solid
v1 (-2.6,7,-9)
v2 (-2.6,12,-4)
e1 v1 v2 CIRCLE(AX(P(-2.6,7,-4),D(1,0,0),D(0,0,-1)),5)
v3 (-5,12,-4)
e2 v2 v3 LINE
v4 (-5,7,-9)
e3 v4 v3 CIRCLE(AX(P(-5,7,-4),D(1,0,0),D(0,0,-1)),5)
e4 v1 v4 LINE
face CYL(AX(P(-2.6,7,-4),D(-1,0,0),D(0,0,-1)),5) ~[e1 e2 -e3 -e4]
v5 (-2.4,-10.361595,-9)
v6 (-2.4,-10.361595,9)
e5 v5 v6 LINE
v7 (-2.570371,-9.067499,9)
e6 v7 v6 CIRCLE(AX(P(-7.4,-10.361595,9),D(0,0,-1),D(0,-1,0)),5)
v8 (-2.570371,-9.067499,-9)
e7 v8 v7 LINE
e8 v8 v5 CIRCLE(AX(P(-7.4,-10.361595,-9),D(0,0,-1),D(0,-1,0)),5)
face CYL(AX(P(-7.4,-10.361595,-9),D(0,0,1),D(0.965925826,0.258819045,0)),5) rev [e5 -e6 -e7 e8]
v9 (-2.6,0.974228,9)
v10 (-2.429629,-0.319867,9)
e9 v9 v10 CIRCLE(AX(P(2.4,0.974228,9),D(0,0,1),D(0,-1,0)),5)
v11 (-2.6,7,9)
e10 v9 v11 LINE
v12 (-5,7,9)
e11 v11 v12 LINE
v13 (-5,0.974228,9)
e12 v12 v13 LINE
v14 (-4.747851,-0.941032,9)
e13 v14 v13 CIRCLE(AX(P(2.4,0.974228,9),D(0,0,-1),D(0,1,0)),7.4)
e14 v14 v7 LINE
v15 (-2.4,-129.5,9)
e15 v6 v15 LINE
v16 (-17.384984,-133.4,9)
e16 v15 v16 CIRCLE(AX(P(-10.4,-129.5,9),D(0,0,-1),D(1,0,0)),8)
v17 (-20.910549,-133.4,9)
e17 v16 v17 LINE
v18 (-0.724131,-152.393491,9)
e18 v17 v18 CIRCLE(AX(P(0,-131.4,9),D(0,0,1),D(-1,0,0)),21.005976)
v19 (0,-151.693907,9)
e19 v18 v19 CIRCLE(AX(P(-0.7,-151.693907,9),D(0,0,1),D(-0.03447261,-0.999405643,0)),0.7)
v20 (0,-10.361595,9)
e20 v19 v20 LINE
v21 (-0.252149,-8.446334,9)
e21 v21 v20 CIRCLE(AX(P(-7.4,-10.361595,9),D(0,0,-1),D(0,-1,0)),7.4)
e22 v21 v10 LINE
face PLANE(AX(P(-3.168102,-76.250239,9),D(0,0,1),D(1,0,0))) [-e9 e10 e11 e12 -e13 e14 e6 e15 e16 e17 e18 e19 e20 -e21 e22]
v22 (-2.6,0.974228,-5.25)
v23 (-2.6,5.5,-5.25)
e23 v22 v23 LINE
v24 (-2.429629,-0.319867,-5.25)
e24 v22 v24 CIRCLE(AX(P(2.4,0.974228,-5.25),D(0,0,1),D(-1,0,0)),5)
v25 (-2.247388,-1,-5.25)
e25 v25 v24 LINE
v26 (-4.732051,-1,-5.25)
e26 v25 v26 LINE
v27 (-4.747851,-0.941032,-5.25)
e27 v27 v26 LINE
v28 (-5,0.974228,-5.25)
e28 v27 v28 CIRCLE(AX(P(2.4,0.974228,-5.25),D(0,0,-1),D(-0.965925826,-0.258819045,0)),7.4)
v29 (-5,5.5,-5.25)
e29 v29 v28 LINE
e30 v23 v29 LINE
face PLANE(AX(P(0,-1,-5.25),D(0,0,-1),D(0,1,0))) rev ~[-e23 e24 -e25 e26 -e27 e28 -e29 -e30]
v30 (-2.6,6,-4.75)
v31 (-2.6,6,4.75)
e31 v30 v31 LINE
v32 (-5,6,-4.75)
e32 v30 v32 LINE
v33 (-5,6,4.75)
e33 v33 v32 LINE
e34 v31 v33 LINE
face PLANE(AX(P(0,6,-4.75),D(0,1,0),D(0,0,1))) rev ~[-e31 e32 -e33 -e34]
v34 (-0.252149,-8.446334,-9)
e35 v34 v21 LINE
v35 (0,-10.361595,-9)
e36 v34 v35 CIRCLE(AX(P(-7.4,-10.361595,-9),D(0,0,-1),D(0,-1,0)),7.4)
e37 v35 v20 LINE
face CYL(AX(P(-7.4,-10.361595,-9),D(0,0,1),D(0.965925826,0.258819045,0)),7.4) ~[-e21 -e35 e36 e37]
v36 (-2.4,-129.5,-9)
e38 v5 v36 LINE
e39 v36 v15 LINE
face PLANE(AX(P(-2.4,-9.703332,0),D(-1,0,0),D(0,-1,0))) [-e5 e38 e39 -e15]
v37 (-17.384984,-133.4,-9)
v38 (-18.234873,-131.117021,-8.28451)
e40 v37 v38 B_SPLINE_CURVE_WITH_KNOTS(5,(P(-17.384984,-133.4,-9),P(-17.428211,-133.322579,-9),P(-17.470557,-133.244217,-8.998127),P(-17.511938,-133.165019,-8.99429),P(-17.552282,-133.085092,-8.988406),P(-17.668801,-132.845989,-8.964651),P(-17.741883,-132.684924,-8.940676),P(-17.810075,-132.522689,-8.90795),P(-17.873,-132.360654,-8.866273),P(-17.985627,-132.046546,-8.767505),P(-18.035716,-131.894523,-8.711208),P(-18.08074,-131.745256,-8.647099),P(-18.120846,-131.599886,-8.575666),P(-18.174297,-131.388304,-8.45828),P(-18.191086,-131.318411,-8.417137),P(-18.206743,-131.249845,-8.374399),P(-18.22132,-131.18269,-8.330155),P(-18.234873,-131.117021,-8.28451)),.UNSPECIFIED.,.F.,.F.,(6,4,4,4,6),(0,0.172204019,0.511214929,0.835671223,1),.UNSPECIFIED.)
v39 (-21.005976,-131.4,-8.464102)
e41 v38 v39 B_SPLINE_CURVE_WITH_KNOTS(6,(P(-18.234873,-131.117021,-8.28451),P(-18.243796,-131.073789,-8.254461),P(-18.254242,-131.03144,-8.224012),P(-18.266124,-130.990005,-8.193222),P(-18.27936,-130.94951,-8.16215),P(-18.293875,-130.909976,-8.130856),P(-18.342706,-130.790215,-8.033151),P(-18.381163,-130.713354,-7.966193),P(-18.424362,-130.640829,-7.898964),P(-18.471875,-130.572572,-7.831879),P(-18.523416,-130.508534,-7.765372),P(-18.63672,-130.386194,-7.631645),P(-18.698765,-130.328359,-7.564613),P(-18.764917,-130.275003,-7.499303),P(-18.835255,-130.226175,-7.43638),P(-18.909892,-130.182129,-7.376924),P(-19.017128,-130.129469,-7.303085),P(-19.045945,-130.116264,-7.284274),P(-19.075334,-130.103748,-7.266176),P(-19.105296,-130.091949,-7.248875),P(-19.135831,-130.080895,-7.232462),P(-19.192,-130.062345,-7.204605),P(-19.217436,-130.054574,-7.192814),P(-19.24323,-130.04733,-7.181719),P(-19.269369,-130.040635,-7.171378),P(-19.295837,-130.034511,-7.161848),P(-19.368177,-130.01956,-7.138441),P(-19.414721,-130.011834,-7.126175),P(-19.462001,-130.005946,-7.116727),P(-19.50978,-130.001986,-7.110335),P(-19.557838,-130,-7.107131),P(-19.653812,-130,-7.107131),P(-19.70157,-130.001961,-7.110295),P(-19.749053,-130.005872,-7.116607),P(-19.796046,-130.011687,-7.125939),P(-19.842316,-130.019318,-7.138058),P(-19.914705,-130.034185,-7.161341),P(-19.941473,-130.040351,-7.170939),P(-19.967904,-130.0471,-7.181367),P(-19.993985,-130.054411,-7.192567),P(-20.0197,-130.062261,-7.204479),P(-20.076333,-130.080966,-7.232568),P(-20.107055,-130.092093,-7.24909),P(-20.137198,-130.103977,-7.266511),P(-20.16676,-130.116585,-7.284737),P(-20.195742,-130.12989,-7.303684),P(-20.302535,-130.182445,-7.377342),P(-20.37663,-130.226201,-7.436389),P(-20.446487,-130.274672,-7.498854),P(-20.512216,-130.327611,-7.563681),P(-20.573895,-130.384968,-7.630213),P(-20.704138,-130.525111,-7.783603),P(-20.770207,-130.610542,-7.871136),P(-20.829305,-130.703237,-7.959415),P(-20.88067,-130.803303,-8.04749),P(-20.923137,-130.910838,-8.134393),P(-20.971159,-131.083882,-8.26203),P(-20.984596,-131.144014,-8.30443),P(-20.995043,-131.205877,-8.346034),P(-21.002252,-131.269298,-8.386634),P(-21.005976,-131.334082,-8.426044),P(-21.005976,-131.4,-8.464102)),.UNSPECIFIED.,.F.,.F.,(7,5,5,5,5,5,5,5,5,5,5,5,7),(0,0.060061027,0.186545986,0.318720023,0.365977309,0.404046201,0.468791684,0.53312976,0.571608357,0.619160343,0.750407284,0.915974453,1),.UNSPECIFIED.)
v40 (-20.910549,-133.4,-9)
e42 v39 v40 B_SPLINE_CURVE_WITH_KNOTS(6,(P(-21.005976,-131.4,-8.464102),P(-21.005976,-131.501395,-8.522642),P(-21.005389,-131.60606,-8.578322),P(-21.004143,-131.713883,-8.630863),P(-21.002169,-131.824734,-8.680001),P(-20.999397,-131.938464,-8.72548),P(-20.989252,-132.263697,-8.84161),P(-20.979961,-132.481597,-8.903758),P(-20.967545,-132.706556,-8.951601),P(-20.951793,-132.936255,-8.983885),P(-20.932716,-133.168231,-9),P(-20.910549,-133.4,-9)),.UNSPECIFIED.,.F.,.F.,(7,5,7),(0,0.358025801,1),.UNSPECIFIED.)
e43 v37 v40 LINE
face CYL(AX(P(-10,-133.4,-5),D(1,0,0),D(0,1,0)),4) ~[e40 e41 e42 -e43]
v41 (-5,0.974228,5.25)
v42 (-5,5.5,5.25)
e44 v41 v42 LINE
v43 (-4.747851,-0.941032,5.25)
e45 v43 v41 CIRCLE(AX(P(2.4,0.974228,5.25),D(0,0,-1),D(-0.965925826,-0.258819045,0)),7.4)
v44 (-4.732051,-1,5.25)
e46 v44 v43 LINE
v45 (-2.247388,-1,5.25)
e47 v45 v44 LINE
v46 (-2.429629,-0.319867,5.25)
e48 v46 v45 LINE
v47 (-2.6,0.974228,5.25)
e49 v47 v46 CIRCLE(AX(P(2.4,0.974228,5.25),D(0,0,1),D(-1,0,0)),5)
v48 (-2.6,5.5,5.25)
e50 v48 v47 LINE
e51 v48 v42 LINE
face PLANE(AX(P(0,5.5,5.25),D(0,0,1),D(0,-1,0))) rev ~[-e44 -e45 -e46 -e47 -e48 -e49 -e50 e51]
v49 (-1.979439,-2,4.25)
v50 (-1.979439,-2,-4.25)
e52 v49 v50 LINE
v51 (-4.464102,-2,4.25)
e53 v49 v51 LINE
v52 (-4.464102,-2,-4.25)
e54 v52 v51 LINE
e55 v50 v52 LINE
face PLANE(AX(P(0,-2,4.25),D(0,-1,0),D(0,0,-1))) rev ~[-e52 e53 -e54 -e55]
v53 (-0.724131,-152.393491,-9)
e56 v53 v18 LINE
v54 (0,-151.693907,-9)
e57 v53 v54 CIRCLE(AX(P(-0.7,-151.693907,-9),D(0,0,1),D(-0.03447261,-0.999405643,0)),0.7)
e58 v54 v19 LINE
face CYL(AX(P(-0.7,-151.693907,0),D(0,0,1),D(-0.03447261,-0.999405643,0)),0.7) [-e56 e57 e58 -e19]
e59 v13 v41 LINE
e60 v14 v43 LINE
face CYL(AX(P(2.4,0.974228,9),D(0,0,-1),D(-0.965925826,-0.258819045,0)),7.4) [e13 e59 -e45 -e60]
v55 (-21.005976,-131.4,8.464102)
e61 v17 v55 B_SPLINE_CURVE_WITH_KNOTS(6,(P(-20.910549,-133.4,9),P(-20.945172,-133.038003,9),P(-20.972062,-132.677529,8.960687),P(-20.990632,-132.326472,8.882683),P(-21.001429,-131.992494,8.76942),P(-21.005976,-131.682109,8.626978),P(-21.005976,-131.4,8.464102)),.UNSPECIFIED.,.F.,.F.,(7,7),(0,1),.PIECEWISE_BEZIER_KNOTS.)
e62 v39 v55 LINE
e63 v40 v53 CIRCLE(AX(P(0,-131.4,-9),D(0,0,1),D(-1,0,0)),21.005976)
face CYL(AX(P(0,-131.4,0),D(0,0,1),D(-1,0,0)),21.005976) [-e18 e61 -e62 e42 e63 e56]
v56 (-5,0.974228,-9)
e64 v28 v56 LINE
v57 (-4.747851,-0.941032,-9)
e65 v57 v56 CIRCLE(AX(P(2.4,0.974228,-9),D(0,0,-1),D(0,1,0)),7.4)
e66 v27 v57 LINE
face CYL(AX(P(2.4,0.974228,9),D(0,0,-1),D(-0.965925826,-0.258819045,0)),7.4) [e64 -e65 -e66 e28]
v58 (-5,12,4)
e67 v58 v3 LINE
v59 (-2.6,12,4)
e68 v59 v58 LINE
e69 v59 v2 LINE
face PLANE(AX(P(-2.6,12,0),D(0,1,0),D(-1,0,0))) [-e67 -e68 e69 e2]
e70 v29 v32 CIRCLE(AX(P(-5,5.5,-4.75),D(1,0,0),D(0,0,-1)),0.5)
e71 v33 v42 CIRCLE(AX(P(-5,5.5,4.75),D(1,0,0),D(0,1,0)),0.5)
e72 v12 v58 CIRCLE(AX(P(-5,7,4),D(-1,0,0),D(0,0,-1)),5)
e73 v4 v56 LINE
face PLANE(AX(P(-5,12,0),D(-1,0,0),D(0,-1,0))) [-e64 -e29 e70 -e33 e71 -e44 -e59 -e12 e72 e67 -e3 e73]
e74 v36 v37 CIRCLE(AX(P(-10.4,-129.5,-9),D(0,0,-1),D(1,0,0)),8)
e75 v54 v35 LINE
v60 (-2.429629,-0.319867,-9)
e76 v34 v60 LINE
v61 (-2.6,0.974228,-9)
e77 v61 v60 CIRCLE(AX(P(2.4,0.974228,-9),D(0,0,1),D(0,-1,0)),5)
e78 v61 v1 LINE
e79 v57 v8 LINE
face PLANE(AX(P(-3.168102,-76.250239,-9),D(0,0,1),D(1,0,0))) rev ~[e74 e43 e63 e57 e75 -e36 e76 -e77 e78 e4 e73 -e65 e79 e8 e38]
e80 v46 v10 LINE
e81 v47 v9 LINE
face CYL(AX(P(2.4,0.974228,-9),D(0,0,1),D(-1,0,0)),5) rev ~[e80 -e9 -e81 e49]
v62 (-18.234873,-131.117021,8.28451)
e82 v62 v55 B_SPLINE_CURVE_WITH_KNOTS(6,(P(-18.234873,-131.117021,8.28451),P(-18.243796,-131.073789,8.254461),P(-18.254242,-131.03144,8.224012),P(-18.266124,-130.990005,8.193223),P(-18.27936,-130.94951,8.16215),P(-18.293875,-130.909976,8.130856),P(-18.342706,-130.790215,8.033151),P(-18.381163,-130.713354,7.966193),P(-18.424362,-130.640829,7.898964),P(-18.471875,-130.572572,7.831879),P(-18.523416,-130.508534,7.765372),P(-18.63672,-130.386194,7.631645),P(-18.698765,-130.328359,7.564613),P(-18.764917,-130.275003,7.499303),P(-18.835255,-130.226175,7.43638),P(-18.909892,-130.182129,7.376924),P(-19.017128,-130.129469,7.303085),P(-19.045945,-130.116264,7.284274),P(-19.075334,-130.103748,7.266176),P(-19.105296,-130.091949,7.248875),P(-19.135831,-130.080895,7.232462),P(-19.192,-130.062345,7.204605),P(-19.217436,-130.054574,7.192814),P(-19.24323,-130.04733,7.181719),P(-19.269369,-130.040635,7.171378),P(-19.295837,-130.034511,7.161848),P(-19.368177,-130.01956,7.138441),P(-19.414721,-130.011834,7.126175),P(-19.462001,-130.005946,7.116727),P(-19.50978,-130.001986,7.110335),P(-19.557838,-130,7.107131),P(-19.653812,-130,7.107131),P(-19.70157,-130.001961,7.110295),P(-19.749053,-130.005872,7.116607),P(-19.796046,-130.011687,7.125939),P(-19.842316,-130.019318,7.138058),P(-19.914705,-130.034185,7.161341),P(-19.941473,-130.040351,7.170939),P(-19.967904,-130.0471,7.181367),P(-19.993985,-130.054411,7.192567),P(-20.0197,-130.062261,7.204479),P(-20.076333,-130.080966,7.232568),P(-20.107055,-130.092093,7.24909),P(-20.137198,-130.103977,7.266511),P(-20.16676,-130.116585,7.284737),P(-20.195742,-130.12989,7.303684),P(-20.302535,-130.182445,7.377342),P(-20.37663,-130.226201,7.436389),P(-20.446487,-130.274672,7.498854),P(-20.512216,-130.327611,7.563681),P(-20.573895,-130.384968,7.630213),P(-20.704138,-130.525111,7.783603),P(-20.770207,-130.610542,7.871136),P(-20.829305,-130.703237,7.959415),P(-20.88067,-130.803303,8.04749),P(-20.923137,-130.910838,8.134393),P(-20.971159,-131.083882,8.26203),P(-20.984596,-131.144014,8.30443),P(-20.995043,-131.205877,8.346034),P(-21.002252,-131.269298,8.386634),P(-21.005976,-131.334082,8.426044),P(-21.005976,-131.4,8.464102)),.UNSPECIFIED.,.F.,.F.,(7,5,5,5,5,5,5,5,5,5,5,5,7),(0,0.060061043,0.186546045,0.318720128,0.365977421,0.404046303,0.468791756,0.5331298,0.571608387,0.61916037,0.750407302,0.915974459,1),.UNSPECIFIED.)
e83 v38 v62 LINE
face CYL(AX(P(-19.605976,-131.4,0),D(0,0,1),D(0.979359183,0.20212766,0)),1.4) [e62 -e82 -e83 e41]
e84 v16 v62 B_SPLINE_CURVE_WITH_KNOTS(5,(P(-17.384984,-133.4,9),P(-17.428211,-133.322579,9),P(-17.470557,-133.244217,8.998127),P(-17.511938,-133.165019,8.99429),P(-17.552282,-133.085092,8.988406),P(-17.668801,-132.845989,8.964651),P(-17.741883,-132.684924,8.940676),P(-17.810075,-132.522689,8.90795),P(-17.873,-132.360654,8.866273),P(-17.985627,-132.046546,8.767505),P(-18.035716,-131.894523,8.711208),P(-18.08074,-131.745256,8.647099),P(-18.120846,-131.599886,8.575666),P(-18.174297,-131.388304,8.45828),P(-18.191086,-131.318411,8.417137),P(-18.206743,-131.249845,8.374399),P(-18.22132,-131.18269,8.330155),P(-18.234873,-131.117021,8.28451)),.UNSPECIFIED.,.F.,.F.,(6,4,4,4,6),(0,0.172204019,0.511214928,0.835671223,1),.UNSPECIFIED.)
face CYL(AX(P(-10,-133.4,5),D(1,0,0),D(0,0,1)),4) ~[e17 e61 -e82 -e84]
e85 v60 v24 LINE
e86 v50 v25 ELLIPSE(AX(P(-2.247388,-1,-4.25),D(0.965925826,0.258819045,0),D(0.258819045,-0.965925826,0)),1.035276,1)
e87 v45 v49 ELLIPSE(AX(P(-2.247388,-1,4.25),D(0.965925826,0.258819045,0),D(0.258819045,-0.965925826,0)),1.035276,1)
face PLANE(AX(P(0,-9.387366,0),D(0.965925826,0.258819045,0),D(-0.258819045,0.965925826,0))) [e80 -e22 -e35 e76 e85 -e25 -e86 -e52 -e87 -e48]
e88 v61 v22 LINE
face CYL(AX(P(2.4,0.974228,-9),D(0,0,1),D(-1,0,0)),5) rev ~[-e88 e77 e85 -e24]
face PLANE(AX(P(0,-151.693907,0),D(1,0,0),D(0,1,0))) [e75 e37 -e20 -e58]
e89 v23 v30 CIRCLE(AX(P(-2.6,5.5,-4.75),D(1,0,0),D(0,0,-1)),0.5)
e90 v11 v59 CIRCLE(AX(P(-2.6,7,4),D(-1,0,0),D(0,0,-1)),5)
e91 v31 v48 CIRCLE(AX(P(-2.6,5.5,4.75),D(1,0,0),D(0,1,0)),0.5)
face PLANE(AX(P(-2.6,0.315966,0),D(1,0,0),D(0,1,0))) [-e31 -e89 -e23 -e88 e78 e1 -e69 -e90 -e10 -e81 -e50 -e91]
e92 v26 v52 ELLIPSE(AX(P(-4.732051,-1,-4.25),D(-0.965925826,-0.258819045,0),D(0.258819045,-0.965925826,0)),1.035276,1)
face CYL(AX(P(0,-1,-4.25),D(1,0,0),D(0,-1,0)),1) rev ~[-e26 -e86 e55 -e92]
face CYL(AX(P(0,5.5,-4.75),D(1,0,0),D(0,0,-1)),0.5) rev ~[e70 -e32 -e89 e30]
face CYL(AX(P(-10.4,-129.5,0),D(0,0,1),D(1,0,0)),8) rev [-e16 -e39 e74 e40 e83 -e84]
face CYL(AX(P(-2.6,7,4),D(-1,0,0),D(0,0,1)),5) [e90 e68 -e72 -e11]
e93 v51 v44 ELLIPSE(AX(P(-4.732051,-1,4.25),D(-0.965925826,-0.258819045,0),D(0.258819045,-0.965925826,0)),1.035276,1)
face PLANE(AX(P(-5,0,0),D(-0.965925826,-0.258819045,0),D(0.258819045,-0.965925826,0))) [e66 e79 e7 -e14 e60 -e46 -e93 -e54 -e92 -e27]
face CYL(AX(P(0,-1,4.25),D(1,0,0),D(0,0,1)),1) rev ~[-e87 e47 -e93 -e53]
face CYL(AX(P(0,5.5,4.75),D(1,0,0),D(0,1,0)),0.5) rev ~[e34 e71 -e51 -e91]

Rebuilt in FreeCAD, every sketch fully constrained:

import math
import FreeCAD as App
import Part
import Sketcher
from FreeCAD import Vector
Q = App.Units.Quantity


def edges_at(feature, points):
    """Names of the edges that pass closest to the given points."""
    edges = feature.Shape.Edges
    near = lambda p: min(range(len(edges)), key=lambda i: edges[i].distToShape(Part.Vertex(*p))[0])
    return sorted({f"Edge{near(p) + 1}" for p in points})

doc = App.newDocument("Part")
body = doc.addObject("PartDesign::Body", "Body")

# Sketch on XY plane
sketch1 = body.newObject("Sketcher::SketchObject", "Sketch")
sketch1.AttachmentSupport = (doc.getObject("XY_Plane"), [""])
sketch1.MapMode = "FlatFace"
sketch1.addGeometry([
    Part.LineSegment(Vector(-5, 0, 0), Vector(-2.4, -9.703332, 0)),  # 0
    Part.LineSegment(Vector(-2.4, -9.703332, 0), Vector(-2.4, -129.5, 0)),  # 1
    Part.ArcOfCircle(Part.Circle(Vector(-10.4, -129.5, 0), Vector(0, 0, 1), 8), math.radians(-168.338594), math.radians(0)),  # 2
    Part.ArcOfCircle(Part.Circle(Vector(-19.605976, -131.4, 0), Vector(0, 0, 1), 1.4), math.radians(11.661406), math.radians(180)),  # 3
    Part.ArcOfCircle(Part.Circle(Vector(0, -131.4, 0), Vector(0, 0, 1), 21.005976), math.radians(180), math.radians(268.024474)),  # 4
    Part.ArcOfCircle(Part.Circle(Vector(-0.7, -151.693907, 0), Vector(0, 0, 1), 0.7), math.radians(-91.975526), math.radians(0)),  # 5
    Part.LineSegment(Vector(0, -151.693907, 0), Vector(0, -9.387366, 0)),  # 6
    Part.LineSegment(Vector(0, -9.387366, 0), Vector(-2.6, 0.315966, 0)),  # 7
    Part.LineSegment(Vector(-2.6, 0.315966, 0), Vector(-2.6, 12, 0)),  # 8
    Part.LineSegment(Vector(-2.6, 12, 0), Vector(-5, 12, 0)),  # 9
    Part.LineSegment(Vector(-5, 12, 0), Vector(-5, 0, 0)),  # 10
], False)
sketch1.addConstraint([
    Sketcher.Constraint("Coincident", 0, 2, 1, 1),
    Sketcher.Constraint("Tangent", 1, 2, 2, 2),
    Sketcher.Constraint("Tangent", 2, 1, 3, 1),
    Sketcher.Constraint("Tangent", 3, 2, 4, 1),
    Sketcher.Constraint("Tangent", 4, 2, 5, 1),
    Sketcher.Constraint("Tangent", 5, 2, 6, 1),
    Sketcher.Constraint("Coincident", 6, 2, 7, 1),
    Sketcher.Constraint("Coincident", 7, 2, 8, 1),
    Sketcher.Constraint("Coincident", 8, 2, 9, 1),
    Sketcher.Constraint("Coincident", 9, 2, 10, 1),
    Sketcher.Constraint("Coincident", 10, 2, 0, 1),
    Sketcher.Constraint("Vertical", 1),
    Sketcher.Constraint("Vertical", 6),
    Sketcher.Constraint("Vertical", 8),
    Sketcher.Constraint("Horizontal", 9),
    Sketcher.Constraint("Vertical", 10),
    Sketcher.Constraint("PointOnObject", 4, 3, -2),
    Sketcher.Constraint("PointOnObject", 5, 2, -2),
    Sketcher.Constraint("PointOnObject", 10, 2, -1),
    Sketcher.Constraint("Parallel", 0, 7),
    Sketcher.Constraint("Horizontal", 3, 3, 4, 3),
    Sketcher.Constraint("Equal", 0, 7),
    Sketcher.Constraint("Radius", 2, Q("8 mm")),
    Sketcher.Constraint("Radius", 3, Q("1.4 mm")),
    Sketcher.Constraint("Radius", 5, Q("0.7 mm")),
    Sketcher.Constraint("DistanceY", 10, 2, 10, 1, Q("12 mm")),
    Sketcher.Constraint("Angle", 0, Q("-75 deg")),
    Sketcher.Constraint("DistanceX", 9, 2, 9, 1, Q("2.4 mm")),
    Sketcher.Constraint("DistanceX", 9, 2, -1, 1, Q("5 mm")),
    Sketcher.Constraint("DistanceY", 2, 3, -1, 1, Q("129.5 mm")),
    Sketcher.Constraint("DistanceY", 3, 3, -1, 1, Q("131.4 mm")),
    Sketcher.Constraint("DistanceY", 6, 1, 6, 2, Q("142.306541 mm")),
])
pad1 = body.newObject("PartDesign::Pad", "Pad")
pad1.Profile = sketch1
pad1.Length = 18
pad1.Midplane = True
doc.recompute()

fillet = body.newObject("PartDesign::Fillet", "Fillet")
fillet.Base = (pad1, edges_at(pad1, [(-2.4, -9.703, 0), (-2.6, 0.316, 0)]))
fillet.Radius = 5
doc.recompute()

fillet2 = body.newObject("PartDesign::Fillet", "Fillet001")
fillet2.Base = (fillet, edges_at(fillet, [(-5, 0, 0), (0, -9.387, 0)]))
fillet2.Radius = 7.4

# Sketch on YZ plane
sketch2 = body.newObject("Sketcher::SketchObject", "Sketch001")
sketch2.AttachmentSupport = (doc.getObject("YZ_Plane"), [""])
sketch2.MapMode = "FlatFace"
sketch2.AttachmentOffset = App.Placement(Vector(0, 0, -10), App.Rotation())
sketch2.addGeometry([
    Part.ArcOfCircle(Part.Circle(Vector(-133.4, -5, 0), Vector(0, 0, 1), 4), math.radians(-90), math.radians(0)),  # 0
    Part.LineSegment(Vector(-133.4, -9, 0), Vector(-133.4, -10, 0)),  # 1
    Part.LineSegment(Vector(-133.4, -10, 0), Vector(-128.4, -10, 0)),  # 2
    Part.LineSegment(Vector(-128.4, -10, 0), Vector(-128.4, 10, 0)),  # 3
    Part.LineSegment(Vector(-128.4, 10, 0), Vector(-133.4, 10, 0)),  # 4
    Part.LineSegment(Vector(-133.4, 10, 0), Vector(-133.4, 9, 0)),  # 5
    Part.ArcOfCircle(Part.Circle(Vector(-133.4, 5, 0), Vector(0, 0, 1), 4), math.radians(0), math.radians(90)),  # 6
    Part.LineSegment(Vector(-129.4, 5, 0), Vector(-129.4, -5, 0)),  # 7
], False)
sketch2.addConstraint([
    Sketcher.Constraint("Coincident", 0, 1, 1, 1),
    Sketcher.Constraint("Coincident", 1, 2, 2, 1),
    Sketcher.Constraint("Coincident", 2, 2, 3, 1),
    Sketcher.Constraint("Coincident", 3, 2, 4, 1),
    Sketcher.Constraint("Coincident", 4, 2, 5, 1),
    Sketcher.Constraint("Coincident", 5, 2, 6, 2),
    Sketcher.Constraint("Tangent", 6, 1, 7, 1),
    Sketcher.Constraint("Tangent", 7, 2, 0, 2),
    Sketcher.Constraint("Vertical", 1),
    Sketcher.Constraint("Horizontal", 2),
    Sketcher.Constraint("Vertical", 3),
    Sketcher.Constraint("Horizontal", 4),
    Sketcher.Constraint("Vertical", 5),
    Sketcher.Constraint("Vertical", 7),
    Sketcher.Constraint("Equal", 0, 6),
    Sketcher.Constraint("Symmetric", 1, 2, 4, 2, -1),
    Sketcher.Constraint("Vertical", 6, 3, 0, 1),
    Sketcher.Constraint("Equal", 1, 5),
    Sketcher.Constraint("Radius", 0, Q("4 mm")),
    Sketcher.Constraint("DistanceX", 2, 1, 2, 2, Q("5 mm")),
    Sketcher.Constraint("DistanceY", 1, 2, 1, 1, Q("1 mm")),
    Sketcher.Constraint("DistanceY", 3, 1, 3, 2, Q("20 mm")),
    Sketcher.Constraint("DistanceX", 0, 3, -1, 1, Q("133.4 mm")),
])
pocket1 = body.newObject("PartDesign::Pocket", "Pocket")
pocket1.Profile = sketch2
pocket1.Length = 20

# Sketch on YZ plane
sketch3 = body.newObject("Sketcher::SketchObject", "Sketch002")
sketch3.AttachmentSupport = (doc.getObject("YZ_Plane"), [""])
sketch3.MapMode = "FlatFace"
sketch3.addGeometry([
    Part.ArcOfCircle(Part.Circle(Vector(5.5, -4.75, 0), Vector(0, 0, 1), 0.5), math.radians(-90), math.radians(0)),  # 0
    Part.LineSegment(Vector(6, -4.75, 0), Vector(6, 4.75, 0)),  # 1
    Part.ArcOfCircle(Part.Circle(Vector(5.5, 4.75, 0), Vector(0, 0, 1), 0.5), math.radians(0), math.radians(90)),  # 2
    Part.LineSegment(Vector(5.5, 5.25, 0), Vector(-1, 5.25, 0)),  # 3
    Part.ArcOfCircle(Part.Circle(Vector(-1, 4.25, 0), Vector(0, 0, 1), 1), math.radians(90), math.radians(180)),  # 4
    Part.LineSegment(Vector(-2, 4.25, 0), Vector(-2, -4.25, 0)),  # 5
    Part.ArcOfCircle(Part.Circle(Vector(-1, -4.25, 0), Vector(0, 0, 1), 1), math.radians(180), math.radians(270)),  # 6
    Part.LineSegment(Vector(-1, -5.25, 0), Vector(5.5, -5.25, 0)),  # 7
], False)
sketch3.addConstraint([
    Sketcher.Constraint("Tangent", 0, 2, 1, 1),
    Sketcher.Constraint("Tangent", 1, 2, 2, 1),
    Sketcher.Constraint("Tangent", 2, 2, 3, 1),
    Sketcher.Constraint("Tangent", 3, 2, 4, 1),
    Sketcher.Constraint("Tangent", 4, 2, 5, 1),
    Sketcher.Constraint("Tangent", 5, 2, 6, 1),
    Sketcher.Constraint("Tangent", 6, 2, 7, 1),
    Sketcher.Constraint("Tangent", 7, 2, 0, 1),
    Sketcher.Constraint("Vertical", 1),
    Sketcher.Constraint("Horizontal", 3),
    Sketcher.Constraint("Vertical", 5),
    Sketcher.Constraint("Horizontal", 7),
    Sketcher.Constraint("Equal", 0, 2),
    Sketcher.Constraint("Equal", 4, 6),
    Sketcher.Constraint("Radius", 4, Q("1 mm")),
    Sketcher.Constraint("Radius", 0, Q("0.5 mm")),
    Sketcher.Constraint("DistanceX", 3, 2, 3, 1, Q("6.5 mm")),
    Sketcher.Constraint("DistanceY", 1, 1, 1, 2, Q("9.5 mm")),
    Sketcher.Constraint("DistanceX", 4, 3, -1, 1, Q("1 mm")),
    Sketcher.Constraint("DistanceY", 0, 3, -1, 1, Q("4.75 mm")),
])
pocket2 = body.newObject("PartDesign::Pocket", "Pocket001")
pocket2.Profile = sketch3
pocket2.Length = 15
doc.recompute()

fillet3 = body.newObject("PartDesign::Fillet", "Fillet002")
fillet3.Base = (pocket2, edges_at(pocket2, [(-3.8, 12, -9), (-3.8, 12, 9)]))
fillet3.Radius = 5

doc.recompute()
